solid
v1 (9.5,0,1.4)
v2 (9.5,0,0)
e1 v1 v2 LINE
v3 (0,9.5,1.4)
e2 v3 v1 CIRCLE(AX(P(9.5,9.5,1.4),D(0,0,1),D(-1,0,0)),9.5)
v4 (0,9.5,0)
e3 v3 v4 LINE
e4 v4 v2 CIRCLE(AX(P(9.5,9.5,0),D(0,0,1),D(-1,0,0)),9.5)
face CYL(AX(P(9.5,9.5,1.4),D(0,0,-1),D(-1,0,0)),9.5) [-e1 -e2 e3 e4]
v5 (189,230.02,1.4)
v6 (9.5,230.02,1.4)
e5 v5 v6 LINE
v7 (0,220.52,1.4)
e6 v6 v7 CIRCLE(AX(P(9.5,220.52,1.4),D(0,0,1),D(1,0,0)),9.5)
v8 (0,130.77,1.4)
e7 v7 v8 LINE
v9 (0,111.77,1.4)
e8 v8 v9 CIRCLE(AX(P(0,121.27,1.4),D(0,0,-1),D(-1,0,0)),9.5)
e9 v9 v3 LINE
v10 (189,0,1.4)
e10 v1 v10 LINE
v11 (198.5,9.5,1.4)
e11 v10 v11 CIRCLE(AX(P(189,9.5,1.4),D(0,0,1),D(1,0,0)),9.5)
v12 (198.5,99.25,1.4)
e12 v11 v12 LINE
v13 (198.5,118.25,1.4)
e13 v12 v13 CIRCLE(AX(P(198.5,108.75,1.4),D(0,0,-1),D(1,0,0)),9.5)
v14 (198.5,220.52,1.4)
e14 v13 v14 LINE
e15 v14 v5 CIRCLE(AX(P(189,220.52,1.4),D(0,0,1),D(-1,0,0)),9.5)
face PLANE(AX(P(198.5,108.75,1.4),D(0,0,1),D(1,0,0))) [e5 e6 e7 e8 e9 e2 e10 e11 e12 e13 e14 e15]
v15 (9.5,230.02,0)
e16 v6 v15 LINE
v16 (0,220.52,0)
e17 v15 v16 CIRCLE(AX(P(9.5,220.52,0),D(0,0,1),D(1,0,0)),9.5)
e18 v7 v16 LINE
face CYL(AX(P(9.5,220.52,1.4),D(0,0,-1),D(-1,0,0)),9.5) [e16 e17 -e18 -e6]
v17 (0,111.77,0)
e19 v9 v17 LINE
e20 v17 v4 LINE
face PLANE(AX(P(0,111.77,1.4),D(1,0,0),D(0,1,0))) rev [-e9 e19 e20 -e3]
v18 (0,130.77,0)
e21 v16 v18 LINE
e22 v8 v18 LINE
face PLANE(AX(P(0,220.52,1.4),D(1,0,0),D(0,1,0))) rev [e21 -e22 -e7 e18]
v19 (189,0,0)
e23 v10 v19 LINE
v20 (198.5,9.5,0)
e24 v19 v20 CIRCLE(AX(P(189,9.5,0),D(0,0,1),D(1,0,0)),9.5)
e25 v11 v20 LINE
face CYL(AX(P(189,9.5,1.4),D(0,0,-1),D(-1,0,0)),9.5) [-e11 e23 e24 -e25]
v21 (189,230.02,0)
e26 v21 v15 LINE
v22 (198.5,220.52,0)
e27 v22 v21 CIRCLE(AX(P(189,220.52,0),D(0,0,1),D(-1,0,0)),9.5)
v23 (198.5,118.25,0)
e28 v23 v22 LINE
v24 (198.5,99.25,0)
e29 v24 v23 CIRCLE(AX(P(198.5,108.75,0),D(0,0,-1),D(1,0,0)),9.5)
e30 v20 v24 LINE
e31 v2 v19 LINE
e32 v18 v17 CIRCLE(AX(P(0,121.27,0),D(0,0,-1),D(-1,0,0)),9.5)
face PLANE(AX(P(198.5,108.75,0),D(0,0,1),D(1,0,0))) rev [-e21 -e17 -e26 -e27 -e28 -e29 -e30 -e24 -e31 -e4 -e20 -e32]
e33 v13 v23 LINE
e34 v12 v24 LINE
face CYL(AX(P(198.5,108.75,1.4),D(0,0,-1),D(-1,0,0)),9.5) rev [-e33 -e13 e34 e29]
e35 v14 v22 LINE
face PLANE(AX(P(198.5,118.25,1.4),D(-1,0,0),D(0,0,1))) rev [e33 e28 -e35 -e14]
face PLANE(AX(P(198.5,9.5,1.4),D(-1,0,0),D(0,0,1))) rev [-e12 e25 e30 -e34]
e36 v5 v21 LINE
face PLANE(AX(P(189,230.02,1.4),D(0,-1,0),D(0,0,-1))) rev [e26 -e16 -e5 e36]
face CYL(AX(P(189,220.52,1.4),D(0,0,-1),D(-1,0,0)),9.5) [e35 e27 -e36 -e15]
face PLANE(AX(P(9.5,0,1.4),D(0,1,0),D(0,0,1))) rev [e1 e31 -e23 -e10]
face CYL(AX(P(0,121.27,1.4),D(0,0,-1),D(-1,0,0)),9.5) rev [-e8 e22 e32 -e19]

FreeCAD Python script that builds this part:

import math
import FreeCAD as App
import Part
import Sketcher
from FreeCAD import Vector
Q = App.Units.Quantity

doc = App.newDocument("Part")
body = doc.addObject("PartDesign::Body", "Body")

# Sketch on XY plane
sketch1 = body.newObject("Sketcher::SketchObject", "Sketch")
sketch1.AttachmentSupport = (doc.getObject("XY_Plane"), [""])
sketch1.MapMode = "FlatFace"
sketch1.addGeometry([
    Part.LineSegment(Vector(10, 0, 0), Vector(189, 0, 0)),  # 0
    Part.ArcOfCircle(Part.Circle(Vector(189, 10, 0), Vector(0, 0, 1), 10), math.radians(-90), math.radians(0)),  # 1
    Part.LineSegment(Vector(198, 10, 0), Vector(198, 99, 0)),  # 2
    Part.ArcOfCircle(Part.Circle(Vector(198, 109, 0), Vector(0, 0, 1), 10), math.radians(90), math.radians(270)),  # 3
    Part.LineSegment(Vector(198, 118, 0), Vector(198, 221, 0)),  # 4
    Part.ArcOfCircle(Part.Circle(Vector(189, 221, 0), Vector(0, 0, 1), 10), math.radians(0), math.radians(90)),  # 5
    Part.LineSegment(Vector(189, 230, 0), Vector(10, 230, 0)),  # 6
    Part.ArcOfCircle(Part.Circle(Vector(10, 221, 0), Vector(0, 0, 1), 10), math.radians(90), math.radians(180)),  # 7
    Part.LineSegment(Vector(0, 221, 0), Vector(0, 131, 0)),  # 8
    Part.ArcOfCircle(Part.Circle(Vector(0, 121, 0), Vector(0, 0, 1), 10), math.radians(-90), math.radians(90)),  # 9
    Part.LineSegment(Vector(0, 112, 0), Vector(0, 10, 0)),  # 10
    Part.ArcOfCircle(Part.Circle(Vector(10, 10, 0), Vector(0, 0, 1), 10), math.radians(-180), math.radians(-90)),  # 11
], False)
sketch1.addConstraint([
    Sketcher.Constraint("Tangent", 0, 2, 1, 1),
    Sketcher.Constraint("Tangent", 1, 2, 2, 1),
    Sketcher.Constraint("Coincident", 2, 2, 3, 2),
    Sketcher.Constraint("Coincident", 3, 1, 4, 1),
    Sketcher.Constraint("Tangent", 4, 2, 5, 1),
    Sketcher.Constraint("Tangent", 5, 2, 6, 1),
    Sketcher.Constraint("Tangent", 6, 2, 7, 1),
    Sketcher.Constraint("Tangent", 7, 2, 8, 1),
    Sketcher.Constraint("Coincident", 8, 2, 9, 2),
    Sketcher.Constraint("Coincident", 9, 1, 10, 1),
    Sketcher.Constraint("Tangent", 10, 2, 11, 1),
    Sketcher.Constraint("Tangent", 11, 2, 0, 1),
    Sketcher.Constraint("Horizontal", 0),
    Sketcher.Constraint("Vertical", 2),
    Sketcher.Constraint("Vertical", 4),
    Sketcher.Constraint("Horizontal", 6),
    Sketcher.Constraint("Vertical", 8),
    Sketcher.Constraint("Vertical", 10),
    Sketcher.Constraint("Equal", 1, 3),
    Sketcher.Constraint("Equal", 3, 5),
    Sketcher.Constraint("Equal", 5, 7),
    Sketcher.Constraint("Equal", 7, 9),
    Sketcher.Constraint("Equal", 9, 11),
    Sketcher.Constraint("PointOnObject", 9, 3, -2),
    Sketcher.Constraint("PointOnObject", 0, 2, -1),
    Sketcher.Constraint("PointOnObject", 7, 2, -2),
    Sketcher.Constraint("PointOnObject", 9, 1, -2),
    Sketcher.Constraint("Vertical", 1, 3, 5, 3),
    Sketcher.Constraint("Vertical", 3, 3, 1, 2),
    Sketcher.Constraint("Equal", 2, 8),
    Sketcher.Constraint("Radius", 1, Q("9.5 mm")),
    Sketcher.Constraint("DistanceX", 0, 1, 0, 2, Q("179.5 mm")),
    Sketcher.Constraint("DistanceY", 2, 1, 2, 2, Q("89.75 mm")),
    Sketcher.Constraint("DistanceY", 4, 1, 4, 2, Q("102.27 mm")),
])
pad1 = body.newObject("PartDesign::Pad", "Pad")
pad1.Profile = sketch1
pad1.Length = 1.4

doc.recompute()
